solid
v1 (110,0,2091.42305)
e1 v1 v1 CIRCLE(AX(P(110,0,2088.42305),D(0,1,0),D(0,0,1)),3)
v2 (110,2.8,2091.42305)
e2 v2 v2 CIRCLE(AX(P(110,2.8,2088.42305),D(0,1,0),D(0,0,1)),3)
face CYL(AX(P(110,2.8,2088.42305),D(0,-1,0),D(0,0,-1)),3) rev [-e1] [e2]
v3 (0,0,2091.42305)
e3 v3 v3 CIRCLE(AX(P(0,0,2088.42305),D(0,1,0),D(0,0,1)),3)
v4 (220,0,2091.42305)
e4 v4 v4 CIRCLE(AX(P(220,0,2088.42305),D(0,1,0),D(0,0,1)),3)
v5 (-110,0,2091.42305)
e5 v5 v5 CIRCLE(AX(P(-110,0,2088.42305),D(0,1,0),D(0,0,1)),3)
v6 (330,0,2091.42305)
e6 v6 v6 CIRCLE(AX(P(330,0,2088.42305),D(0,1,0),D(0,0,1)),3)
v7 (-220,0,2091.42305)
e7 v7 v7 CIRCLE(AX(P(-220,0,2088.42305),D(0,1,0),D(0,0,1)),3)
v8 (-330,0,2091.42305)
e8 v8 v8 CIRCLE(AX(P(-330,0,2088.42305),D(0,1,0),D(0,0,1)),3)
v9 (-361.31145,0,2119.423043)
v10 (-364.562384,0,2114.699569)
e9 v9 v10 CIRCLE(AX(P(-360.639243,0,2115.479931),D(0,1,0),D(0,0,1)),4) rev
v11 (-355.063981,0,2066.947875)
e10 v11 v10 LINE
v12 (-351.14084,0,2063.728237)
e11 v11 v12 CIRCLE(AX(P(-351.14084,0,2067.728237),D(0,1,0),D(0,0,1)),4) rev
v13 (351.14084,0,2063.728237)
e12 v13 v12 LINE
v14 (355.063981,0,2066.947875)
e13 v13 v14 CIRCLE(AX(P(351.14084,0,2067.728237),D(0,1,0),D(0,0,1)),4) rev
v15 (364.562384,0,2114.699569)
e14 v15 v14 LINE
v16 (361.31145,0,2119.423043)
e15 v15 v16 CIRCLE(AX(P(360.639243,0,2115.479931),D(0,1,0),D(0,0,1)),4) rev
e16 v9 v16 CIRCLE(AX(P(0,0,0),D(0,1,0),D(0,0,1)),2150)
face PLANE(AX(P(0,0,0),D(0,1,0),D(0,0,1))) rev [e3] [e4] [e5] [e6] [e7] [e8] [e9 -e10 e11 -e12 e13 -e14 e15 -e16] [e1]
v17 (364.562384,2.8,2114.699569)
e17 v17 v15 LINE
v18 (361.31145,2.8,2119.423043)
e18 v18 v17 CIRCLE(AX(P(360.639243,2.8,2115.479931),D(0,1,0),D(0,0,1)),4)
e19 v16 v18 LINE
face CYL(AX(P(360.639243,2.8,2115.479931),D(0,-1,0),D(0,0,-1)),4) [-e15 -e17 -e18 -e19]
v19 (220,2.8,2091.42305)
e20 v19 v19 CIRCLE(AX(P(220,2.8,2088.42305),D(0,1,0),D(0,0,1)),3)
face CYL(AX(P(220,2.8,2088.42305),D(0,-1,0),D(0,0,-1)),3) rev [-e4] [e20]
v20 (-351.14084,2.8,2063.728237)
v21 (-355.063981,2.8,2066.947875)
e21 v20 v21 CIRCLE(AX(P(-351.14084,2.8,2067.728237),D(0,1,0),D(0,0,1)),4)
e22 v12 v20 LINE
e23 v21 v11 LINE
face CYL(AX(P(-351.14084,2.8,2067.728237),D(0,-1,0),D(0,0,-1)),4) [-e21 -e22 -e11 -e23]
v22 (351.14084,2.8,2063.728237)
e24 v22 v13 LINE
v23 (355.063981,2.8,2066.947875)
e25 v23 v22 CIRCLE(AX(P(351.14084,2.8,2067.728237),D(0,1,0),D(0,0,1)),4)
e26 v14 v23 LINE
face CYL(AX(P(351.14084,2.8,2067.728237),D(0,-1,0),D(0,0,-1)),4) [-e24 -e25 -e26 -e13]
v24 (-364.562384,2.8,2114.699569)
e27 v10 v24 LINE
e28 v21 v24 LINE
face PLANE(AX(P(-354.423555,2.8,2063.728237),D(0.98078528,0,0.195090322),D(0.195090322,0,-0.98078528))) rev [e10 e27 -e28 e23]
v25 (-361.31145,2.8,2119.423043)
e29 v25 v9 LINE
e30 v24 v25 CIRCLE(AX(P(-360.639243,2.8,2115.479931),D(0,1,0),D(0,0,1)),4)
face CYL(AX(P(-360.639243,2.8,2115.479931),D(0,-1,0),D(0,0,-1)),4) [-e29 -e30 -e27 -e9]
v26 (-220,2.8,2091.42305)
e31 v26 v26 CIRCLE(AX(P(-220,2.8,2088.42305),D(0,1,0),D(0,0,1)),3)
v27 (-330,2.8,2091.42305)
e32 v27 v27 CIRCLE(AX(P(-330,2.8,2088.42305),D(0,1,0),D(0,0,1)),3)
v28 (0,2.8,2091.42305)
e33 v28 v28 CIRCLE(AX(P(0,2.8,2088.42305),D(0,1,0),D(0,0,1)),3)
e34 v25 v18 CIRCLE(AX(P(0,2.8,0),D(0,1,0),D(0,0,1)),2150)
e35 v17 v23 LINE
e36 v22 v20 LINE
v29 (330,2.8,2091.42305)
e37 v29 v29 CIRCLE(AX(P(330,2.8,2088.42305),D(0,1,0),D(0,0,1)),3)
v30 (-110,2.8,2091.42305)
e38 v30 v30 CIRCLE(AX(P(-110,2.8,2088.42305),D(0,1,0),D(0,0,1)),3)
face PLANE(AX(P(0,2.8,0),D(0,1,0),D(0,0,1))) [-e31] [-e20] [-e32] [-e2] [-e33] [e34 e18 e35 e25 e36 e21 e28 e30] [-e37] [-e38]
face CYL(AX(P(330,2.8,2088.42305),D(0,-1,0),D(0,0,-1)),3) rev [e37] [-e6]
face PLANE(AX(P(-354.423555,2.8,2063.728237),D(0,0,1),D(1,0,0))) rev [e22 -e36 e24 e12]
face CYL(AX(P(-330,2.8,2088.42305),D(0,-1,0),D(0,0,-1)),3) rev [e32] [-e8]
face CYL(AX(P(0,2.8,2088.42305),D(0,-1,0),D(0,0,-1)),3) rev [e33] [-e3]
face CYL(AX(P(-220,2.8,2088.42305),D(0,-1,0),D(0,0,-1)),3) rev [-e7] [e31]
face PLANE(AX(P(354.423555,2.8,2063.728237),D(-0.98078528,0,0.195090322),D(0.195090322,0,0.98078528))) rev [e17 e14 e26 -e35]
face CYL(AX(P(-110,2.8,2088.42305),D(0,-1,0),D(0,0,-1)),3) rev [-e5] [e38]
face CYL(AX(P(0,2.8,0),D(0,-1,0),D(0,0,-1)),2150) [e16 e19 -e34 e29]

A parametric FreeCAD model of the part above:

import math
import FreeCAD as App
import Part
import Sketcher
from FreeCAD import Vector
Q = App.Units.Quantity


def edges_at(feature, points):
    """Names of the edges that pass closest to the given points."""
    edges = feature.Shape.Edges
    near = lambda p: min(range(len(edges)), key=lambda i: edges[i].distToShape(Part.Vertex(*p))[0])
    return sorted({f"Edge{near(p) + 1}" for p in points})

doc = App.newDocument("Part")
body = doc.addObject("PartDesign::Body", "Body")

# Sketch on XZ plane
sketch1 = body.newObject("Sketcher::SketchObject", "Sketch")
sketch1.AttachmentSupport = (doc.getObject("XZ_Plane"), [""])
sketch1.MapMode = "FlatFace"
sketch1.addGeometry([
    Part.LineSegment(Vector(-354.4, 2063.7, 0), Vector(-365.4, 2118.7, 0)),  # 0
    Part.ArcOfCircle(Part.Circle(Vector(0, 0, 0), Vector(0, 0, 1), 2150), math.radians(80.22), math.radians(99.78)),  # 1
    Part.LineSegment(Vector(365.4, 2118.7, 0), Vector(354.4, 2063.7, 0)),  # 2
    Part.LineSegment(Vector(354.4, 2063.7, 0), Vector(-354.4, 2063.7, 0)),  # 3
    Part.Circle(Vector(-330, 2088.4, 0), Vector(0, 0, 1), 3),  # 4
    Part.Circle(Vector(-220, 2088.4, 0), Vector(0, 0, 1), 3),  # 5
    Part.Circle(Vector(-110, 2088.4, 0), Vector(0, 0, 1), 3),  # 6
    Part.Circle(Vector(0, 2088.4, 0), Vector(0, 0, 1), 3),  # 7
    Part.Circle(Vector(110, 2088.4, 0), Vector(0, 0, 1), 3),  # 8
    Part.Circle(Vector(220, 2088.4, 0), Vector(0, 0, 1), 3),  # 9
    Part.Circle(Vector(330, 2088.4, 0), Vector(0, 0, 1), 3),  # 10
], False)
sketch1.addConstraint([
    Sketcher.Constraint("Coincident", 0, 2, 1, 2),
    Sketcher.Constraint("Coincident", 1, 1, 2, 1),
    Sketcher.Constraint("Coincident", 2, 2, 3, 1),
    Sketcher.Constraint("Coincident", 3, 2, 0, 1),
    Sketcher.Constraint("Horizontal", 3),
    Sketcher.Constraint("Coincident", 1, 3, -1, 1),
    Sketcher.Constraint("Equal", 4, 5),
    Sketcher.Constraint("Equal", 5, 6),
    Sketcher.Constraint("Equal", 6, 7),
    Sketcher.Constraint("Equal", 7, 8),
    Sketcher.Constraint("Equal", 8, 9),
    Sketcher.Constraint("Equal", 9, 10),
    Sketcher.Constraint("Symmetric", 6, 3, 8, 3, -2),
    Sketcher.Constraint("Symmetric", 5, 3, 9, 3, -2),
    Sketcher.Constraint("Symmetric", 4, 3, 10, 3, -2),
    Sketcher.Constraint("PointOnObject", 7, 3, -2),
    Sketcher.Constraint("Horizontal", 4, 3, 5, 3),
    Sketcher.Constraint("Horizontal", 5, 3, 6, 3),
    Sketcher.Constraint("Horizontal", 6, 3, 7, 3),
    Sketcher.Constraint("Equal", 0, 2),
    Sketcher.Constraint("Diameter", 4, 6.0),
    Sketcher.Constraint("Radius", 1, 2150.0),
    Sketcher.Constraint("DistanceX", 4, 3, -1, 1, 330.0),
    Sketcher.Constraint("DistanceX", 5, 3, -1, 1, 220.0),
    Sketcher.Constraint("DistanceX", 6, 3, -1, 1, 110.0),
    Sketcher.Constraint("DistanceY", 3, 2, 0, 2, 55.0),
    Sketcher.Constraint("Angle", 0, Q("101.25 deg")),
    Sketcher.Constraint("Angle", 2, Q("-101.25 deg")),
    Sketcher.Constraint("DistanceX", 3, 2, 3, 1, 708.847111),
    Sketcher.Constraint("DistanceY", -1, 1, 4, 3, 2088.42305),
])
pad1 = body.newObject("PartDesign::Pad", "Pad")
pad1.Profile = sketch1
pad1.Length = 2.8
pad1.Reversed = True
doc.recompute()

fillet = body.newObject("PartDesign::Fillet", "Fillet")
fillet.Base = (pad1, edges_at(pad1, [
    (365.364, 1.4, 2118.728),
    (-365.364, 1.4, 2118.728),
    (-354.424, 1.4, 2063.728),
    (354.424, 1.4, 2063.728),
]))
fillet.Radius = 4

doc.recompute()
